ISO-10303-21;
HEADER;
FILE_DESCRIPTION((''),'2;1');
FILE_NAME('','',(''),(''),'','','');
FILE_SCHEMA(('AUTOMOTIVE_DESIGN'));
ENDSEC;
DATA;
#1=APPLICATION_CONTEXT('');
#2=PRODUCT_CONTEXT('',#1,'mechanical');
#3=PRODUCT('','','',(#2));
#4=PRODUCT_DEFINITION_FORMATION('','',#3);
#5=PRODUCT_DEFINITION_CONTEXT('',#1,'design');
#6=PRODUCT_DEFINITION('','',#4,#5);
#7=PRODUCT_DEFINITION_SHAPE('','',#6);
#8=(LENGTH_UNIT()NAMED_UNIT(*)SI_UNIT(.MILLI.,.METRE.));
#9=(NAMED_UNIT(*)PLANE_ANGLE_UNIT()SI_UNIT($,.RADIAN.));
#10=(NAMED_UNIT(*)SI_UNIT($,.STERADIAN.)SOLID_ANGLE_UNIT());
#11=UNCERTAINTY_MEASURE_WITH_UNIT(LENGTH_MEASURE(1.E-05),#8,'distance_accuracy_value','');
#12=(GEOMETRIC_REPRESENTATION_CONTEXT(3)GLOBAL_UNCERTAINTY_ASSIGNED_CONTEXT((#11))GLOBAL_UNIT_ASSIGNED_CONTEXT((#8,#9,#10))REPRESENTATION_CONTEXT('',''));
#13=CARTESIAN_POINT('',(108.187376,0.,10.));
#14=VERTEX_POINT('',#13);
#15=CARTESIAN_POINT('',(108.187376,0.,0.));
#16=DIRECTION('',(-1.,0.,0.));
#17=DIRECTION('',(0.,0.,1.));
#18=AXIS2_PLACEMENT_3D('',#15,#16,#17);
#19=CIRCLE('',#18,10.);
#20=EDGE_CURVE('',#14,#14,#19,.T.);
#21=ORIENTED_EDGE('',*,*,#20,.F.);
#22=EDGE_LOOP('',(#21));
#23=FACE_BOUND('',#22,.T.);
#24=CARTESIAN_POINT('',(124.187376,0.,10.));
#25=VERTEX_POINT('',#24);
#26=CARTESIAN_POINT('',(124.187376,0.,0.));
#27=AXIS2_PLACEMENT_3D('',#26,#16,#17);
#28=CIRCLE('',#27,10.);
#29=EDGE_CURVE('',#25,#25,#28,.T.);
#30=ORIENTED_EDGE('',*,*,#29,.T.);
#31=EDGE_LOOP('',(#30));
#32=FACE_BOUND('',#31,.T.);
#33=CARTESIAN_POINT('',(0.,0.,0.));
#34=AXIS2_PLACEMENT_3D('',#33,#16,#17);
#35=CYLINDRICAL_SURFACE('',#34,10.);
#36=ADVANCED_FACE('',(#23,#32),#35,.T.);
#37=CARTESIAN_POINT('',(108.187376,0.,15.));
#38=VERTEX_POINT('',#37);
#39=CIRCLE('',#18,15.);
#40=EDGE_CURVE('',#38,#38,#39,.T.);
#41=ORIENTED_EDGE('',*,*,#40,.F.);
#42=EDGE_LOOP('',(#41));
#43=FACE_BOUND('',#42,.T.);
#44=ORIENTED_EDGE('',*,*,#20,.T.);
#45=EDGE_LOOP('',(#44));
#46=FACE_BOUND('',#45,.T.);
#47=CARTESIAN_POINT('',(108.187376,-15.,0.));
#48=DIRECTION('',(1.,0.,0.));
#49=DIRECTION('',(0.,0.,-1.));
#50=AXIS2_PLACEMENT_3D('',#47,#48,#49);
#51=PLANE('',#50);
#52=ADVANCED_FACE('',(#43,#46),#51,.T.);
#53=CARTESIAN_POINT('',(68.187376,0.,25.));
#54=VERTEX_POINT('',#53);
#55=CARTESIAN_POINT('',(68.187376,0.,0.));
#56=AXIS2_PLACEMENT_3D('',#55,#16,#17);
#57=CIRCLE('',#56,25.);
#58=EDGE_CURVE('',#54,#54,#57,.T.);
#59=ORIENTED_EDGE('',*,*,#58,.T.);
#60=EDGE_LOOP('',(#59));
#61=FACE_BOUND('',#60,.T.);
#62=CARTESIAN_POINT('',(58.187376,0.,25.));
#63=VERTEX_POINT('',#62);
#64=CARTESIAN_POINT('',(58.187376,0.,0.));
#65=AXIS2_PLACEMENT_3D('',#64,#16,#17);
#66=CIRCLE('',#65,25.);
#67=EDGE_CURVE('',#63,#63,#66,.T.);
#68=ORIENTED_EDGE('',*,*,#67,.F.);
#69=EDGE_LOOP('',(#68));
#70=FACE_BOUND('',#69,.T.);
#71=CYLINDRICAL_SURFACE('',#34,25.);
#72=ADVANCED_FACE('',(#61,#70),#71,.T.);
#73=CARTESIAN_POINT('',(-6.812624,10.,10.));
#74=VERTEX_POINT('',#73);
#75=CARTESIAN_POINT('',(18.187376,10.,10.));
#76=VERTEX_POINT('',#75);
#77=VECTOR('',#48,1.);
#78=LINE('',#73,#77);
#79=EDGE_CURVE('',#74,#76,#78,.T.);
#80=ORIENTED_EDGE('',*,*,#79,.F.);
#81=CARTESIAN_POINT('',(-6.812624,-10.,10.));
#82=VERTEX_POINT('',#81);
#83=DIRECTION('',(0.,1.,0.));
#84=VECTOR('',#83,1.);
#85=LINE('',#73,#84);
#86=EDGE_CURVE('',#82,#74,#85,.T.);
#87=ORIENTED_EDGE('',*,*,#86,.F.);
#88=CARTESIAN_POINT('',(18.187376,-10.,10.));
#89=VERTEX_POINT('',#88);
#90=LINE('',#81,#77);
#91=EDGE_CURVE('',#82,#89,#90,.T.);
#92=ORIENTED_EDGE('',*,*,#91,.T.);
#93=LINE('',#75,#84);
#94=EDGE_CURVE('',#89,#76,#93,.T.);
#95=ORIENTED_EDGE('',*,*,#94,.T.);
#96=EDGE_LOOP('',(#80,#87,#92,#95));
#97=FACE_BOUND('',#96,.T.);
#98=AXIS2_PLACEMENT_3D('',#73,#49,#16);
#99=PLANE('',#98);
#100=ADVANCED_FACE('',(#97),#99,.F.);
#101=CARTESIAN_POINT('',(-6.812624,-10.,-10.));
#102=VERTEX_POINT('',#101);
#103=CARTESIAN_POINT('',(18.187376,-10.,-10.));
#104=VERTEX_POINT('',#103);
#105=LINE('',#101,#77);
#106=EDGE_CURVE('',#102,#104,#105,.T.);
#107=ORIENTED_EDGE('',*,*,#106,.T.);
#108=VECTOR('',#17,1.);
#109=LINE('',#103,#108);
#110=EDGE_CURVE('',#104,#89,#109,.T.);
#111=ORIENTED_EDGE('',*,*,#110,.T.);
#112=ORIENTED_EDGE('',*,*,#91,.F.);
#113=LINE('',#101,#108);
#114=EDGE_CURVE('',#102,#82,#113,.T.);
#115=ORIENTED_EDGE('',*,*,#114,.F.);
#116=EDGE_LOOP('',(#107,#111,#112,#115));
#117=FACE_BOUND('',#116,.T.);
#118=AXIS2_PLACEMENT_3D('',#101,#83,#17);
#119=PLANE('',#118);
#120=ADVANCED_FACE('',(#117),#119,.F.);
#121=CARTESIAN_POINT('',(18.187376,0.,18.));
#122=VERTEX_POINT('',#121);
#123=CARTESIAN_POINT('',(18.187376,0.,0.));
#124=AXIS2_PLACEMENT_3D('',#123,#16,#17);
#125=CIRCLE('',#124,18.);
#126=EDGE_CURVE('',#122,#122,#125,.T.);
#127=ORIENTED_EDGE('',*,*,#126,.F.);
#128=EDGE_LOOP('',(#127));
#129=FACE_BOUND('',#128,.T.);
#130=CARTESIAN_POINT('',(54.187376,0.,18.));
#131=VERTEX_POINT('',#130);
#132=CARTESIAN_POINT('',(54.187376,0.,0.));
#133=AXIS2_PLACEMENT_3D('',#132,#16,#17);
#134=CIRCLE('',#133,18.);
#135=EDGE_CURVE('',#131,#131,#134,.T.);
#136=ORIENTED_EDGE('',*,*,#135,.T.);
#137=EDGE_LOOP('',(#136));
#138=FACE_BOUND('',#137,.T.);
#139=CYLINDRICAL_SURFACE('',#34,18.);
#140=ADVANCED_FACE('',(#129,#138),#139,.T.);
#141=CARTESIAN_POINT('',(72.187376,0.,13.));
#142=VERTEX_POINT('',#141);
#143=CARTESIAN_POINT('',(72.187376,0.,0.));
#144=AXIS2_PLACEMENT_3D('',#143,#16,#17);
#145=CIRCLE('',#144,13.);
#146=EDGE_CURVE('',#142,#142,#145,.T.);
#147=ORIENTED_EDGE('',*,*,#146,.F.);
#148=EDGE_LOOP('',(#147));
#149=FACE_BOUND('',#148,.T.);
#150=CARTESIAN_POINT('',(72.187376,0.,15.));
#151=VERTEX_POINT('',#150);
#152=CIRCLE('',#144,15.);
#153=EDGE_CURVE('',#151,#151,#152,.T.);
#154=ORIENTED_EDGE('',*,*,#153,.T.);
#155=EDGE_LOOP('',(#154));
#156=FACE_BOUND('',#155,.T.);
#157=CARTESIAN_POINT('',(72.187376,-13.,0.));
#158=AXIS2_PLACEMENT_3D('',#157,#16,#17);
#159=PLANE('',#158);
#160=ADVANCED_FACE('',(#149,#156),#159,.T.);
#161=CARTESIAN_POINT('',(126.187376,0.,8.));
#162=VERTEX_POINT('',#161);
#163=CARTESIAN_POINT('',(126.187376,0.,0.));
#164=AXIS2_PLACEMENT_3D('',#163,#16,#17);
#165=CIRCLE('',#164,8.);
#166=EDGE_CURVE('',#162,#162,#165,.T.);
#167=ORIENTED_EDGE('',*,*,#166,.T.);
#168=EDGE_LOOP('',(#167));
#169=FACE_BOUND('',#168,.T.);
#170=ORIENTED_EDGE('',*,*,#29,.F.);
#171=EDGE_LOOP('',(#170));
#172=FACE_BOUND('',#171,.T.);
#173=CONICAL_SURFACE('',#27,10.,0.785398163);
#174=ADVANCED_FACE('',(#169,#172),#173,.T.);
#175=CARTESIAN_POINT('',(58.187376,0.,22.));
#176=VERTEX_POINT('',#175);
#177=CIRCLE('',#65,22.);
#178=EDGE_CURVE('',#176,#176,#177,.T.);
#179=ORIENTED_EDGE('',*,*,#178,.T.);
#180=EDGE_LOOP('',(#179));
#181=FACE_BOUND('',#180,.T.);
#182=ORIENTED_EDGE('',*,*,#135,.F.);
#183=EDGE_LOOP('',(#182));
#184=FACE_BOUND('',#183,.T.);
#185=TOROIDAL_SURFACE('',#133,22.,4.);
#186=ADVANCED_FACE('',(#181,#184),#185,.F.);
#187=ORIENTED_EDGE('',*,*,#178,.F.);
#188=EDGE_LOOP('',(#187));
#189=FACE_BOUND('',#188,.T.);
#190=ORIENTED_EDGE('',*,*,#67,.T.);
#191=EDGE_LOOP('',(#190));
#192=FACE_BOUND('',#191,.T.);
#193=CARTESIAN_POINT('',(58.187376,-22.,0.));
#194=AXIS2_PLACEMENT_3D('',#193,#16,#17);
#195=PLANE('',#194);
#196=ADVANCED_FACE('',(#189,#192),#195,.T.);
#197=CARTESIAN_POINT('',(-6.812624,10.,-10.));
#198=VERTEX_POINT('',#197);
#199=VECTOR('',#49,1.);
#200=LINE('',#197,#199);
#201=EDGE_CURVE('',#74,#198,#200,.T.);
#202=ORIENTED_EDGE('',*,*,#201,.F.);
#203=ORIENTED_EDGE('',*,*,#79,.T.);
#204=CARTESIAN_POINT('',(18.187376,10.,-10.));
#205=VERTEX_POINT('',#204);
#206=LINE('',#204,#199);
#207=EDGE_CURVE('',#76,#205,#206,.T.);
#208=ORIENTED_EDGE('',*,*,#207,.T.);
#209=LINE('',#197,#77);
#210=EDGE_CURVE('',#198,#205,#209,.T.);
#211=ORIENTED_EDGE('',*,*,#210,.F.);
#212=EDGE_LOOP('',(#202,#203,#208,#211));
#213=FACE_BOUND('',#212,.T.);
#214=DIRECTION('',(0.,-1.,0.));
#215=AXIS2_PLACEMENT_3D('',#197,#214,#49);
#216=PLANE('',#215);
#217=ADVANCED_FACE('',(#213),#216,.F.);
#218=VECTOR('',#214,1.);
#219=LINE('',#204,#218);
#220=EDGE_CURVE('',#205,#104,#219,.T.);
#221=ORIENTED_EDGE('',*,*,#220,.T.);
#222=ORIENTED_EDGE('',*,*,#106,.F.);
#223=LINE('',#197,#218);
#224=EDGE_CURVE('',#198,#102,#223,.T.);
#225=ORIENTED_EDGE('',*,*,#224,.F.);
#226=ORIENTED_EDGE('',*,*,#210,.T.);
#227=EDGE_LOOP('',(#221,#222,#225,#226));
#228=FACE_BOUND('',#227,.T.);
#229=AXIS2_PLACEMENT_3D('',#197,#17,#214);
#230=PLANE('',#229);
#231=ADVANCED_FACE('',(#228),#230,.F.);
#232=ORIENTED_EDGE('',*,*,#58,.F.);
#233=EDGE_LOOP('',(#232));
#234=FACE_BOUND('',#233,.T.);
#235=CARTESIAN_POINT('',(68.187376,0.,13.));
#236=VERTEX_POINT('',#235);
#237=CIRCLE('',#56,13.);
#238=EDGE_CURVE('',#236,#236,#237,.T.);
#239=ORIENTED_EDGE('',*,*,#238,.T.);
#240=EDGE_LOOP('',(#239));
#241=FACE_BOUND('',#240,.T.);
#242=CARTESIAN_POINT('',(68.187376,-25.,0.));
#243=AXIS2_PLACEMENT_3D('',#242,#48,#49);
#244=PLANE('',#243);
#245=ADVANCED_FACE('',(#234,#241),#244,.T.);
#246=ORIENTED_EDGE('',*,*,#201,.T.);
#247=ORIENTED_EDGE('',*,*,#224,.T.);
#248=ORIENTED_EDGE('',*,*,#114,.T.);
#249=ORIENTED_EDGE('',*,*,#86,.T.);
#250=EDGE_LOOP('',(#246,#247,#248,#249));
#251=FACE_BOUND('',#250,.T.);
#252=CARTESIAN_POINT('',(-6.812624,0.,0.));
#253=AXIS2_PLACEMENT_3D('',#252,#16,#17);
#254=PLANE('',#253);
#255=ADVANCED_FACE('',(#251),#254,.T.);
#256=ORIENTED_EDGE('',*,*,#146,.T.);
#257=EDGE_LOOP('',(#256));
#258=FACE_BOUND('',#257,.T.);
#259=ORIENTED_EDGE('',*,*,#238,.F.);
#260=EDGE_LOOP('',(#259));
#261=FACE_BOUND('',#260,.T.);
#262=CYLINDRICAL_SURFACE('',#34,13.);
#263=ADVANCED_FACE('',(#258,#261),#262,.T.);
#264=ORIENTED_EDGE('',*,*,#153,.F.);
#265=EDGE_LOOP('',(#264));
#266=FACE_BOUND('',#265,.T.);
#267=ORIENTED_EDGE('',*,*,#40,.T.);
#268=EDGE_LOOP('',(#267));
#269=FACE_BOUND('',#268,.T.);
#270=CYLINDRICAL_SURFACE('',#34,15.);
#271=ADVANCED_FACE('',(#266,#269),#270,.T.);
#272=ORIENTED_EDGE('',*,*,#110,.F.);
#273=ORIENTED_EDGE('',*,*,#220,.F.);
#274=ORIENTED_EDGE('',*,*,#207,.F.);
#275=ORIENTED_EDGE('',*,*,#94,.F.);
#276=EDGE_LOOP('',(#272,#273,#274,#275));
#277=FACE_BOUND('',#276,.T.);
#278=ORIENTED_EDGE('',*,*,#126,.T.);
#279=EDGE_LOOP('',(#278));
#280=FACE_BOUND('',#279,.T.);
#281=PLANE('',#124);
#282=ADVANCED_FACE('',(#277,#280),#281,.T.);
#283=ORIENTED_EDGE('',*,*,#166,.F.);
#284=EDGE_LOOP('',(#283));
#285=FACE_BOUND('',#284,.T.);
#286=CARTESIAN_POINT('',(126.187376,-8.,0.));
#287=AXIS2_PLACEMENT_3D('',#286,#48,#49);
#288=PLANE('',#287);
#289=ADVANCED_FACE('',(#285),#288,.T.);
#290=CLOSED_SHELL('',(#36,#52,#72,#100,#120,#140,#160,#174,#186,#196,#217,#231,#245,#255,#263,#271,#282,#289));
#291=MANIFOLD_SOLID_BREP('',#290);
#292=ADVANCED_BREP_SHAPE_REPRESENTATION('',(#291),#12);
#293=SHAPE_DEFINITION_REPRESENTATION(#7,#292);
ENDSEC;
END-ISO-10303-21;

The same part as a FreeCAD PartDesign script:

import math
import FreeCAD as App
import Part
import Sketcher
from FreeCAD import Vector


def add_polygon(sketch, points):
    """Adds a closed chain of lines whose ends are joined by coincident constraints."""
    first, n = sketch.GeometryCount, len(points)
    for a, b in zip(points, points[1:] + points[:1]):
        sketch.addGeometry(Part.LineSegment(App.Vector(*a, 0), App.Vector(*b, 0)), False)
    for i in range(n):
        sketch.addConstraint(Sketcher.Constraint("Coincident", first + i, 2, first + (i + 1) % n, 1))

doc = App.newDocument("Part")
body = doc.addObject("PartDesign::Body", "Body")

sketch1 = doc.addObject("Sketcher::SketchObject", "Sketch")
body.addObject(sketch1)
sketch1.AttachmentSupport = (doc.XY_Plane, [""])
sketch1.MapMode = "FlatFace"
sketch1.addGeometry([
    Part.LineSegment(Vector(18.2, 0, 0), Vector(18.2, -18, 0)),
    Part.LineSegment(Vector(18.2, -18, 0), Vector(54.2, -18, 0)),
    Part.ArcOfCircle(Part.Circle(Vector(54.2, -22, 0), Vector(0, 0, 1), 4), math.radians(0), math.radians(90)),
    Part.LineSegment(Vector(58.2, -22, 0), Vector(58.2, -25, 0)),
    Part.LineSegment(Vector(58.2, -25, 0), Vector(68.2, -25, 0)),
    Part.LineSegment(Vector(68.2, -25, 0), Vector(68.2, -13, 0)),
    Part.LineSegment(Vector(68.2, -13, 0), Vector(72.2, -13, 0)),
    Part.LineSegment(Vector(72.2, -13, 0), Vector(72.2, -15, 0)),
    Part.LineSegment(Vector(72.2, -15, 0), Vector(108.2, -15, 0)),
    Part.LineSegment(Vector(108.2, -15, 0), Vector(108.2, -10, 0)),
    Part.LineSegment(Vector(108.2, -10, 0), Vector(124.2, -10, 0)),
    Part.LineSegment(Vector(124.2, -10, 0), Vector(126.2, -8, 0)),
    Part.LineSegment(Vector(126.2, -8, 0), Vector(126.2, 0, 0)),
    Part.LineSegment(Vector(126.2, 0, 0), Vector(18.2, 0, 0)),
], False)
sketch1.addConstraint([
    Sketcher.Constraint("Coincident", 0, 2, 1, 1),
    Sketcher.Constraint("Tangent", 1, 2, 2, 2),
    Sketcher.Constraint("Tangent", 2, 1, 3, 1),
    Sketcher.Constraint("Coincident", 3, 2, 4, 1),
    Sketcher.Constraint("Coincident", 4, 2, 5, 1),
    Sketcher.Constraint("Coincident", 5, 2, 6, 1),
    Sketcher.Constraint("Coincident", 6, 2, 7, 1),
    Sketcher.Constraint("Coincident", 7, 2, 8, 1),
    Sketcher.Constraint("Coincident", 8, 2, 9, 1),
    Sketcher.Constraint("Coincident", 9, 2, 10, 1),
    Sketcher.Constraint("Coincident", 10, 2, 11, 1),
    Sketcher.Constraint("Coincident", 11, 2, 12, 1),
    Sketcher.Constraint("Coincident", 12, 2, 13, 1),
    Sketcher.Constraint("Coincident", 13, 2, 0, 1),
    Sketcher.Constraint("Vertical", 0),
    Sketcher.Constraint("Horizontal", 1),
    Sketcher.Constraint("Vertical", 3),
    Sketcher.Constraint("Horizontal", 4),
    Sketcher.Constraint("Vertical", 5),
    Sketcher.Constraint("Horizontal", 6),
    Sketcher.Constraint("Vertical", 7),
    Sketcher.Constraint("Horizontal", 8),
    Sketcher.Constraint("Vertical", 9),
    Sketcher.Constraint("Horizontal", 10),
    Sketcher.Constraint("Vertical", 12),
    Sketcher.Constraint("Horizontal", 13),
    Sketcher.Constraint("PointOnObject", 12, 2, -1),
    Sketcher.Constraint("Equal", 1, 8),
    Sketcher.Constraint("Radius", 2, 4.0),
    Sketcher.Constraint("DistanceX", 1, 1, 1, 2, 36.0),
    Sketcher.Constraint("DistanceX", 4, 1, 4, 2, 10.0),
    Sketcher.Constraint("DistanceX", 6, 1, 6, 2, 4.0),
    Sketcher.Constraint("DistanceX", 10, 1, 10, 2, 16.0),
    Sketcher.Constraint("DistanceX", 13, 2, 13, 1, 108.0),
    Sketcher.Constraint("DistanceY", 0, 2, 0, 1, 18.0),
    Sketcher.Constraint("DistanceY", 3, 2, 3, 1, 3.0),
    Sketcher.Constraint("DistanceY", 5, 1, 5, 2, 12.0),
    Sketcher.Constraint("DistanceY", 7, 2, 7, 1, 2.0),
    Sketcher.Constraint("DistanceY", 9, 1, 9, 2, 5.0),
    Sketcher.Constraint("DistanceY", 12, 1, 12, 2, 8.0),
    Sketcher.Constraint("DistanceX", -1, 1, 2, 3, 54.187376),
])
revolution = doc.addObject("PartDesign::Revolution", "Revolution")
body.addObject(revolution)
revolution.Profile = sketch1
revolution.ReferenceAxis = (sketch1, ["H_Axis"])
revolution.Angle = 360

sketch2 = doc.addObject("Sketcher::SketchObject", "Sketch001")
body.addObject(sketch2)
sketch2.AttachmentSupport = (doc.YZ_Plane, [""])
sketch2.MapMode = "FlatFace"
sketch2.AttachmentOffset = App.Placement(Vector(0, 0, 18.187376), App.Rotation())
add_polygon(sketch2, [(10, -10), (-10, -10), (-10, 10), (10, 10)])
sketch2.addConstraint([
    Sketcher.Constraint("Horizontal", 0),
    Sketcher.Constraint("Vertical", 1),
    Sketcher.Constraint("Horizontal", 2),
    Sketcher.Constraint("Vertical", 3),
    Sketcher.Constraint("Symmetric", 0, 2, 2, 2, -1, 1),
    Sketcher.Constraint("Equal", 2, 1),
    Sketcher.Constraint("DistanceX", 0, 2, 0, 1, 20.0),
])
pad1 = doc.addObject("PartDesign::Pad", "Pad")
body.addObject(pad1)
pad1.Profile = sketch2
pad1.Length = 25
pad1.Reversed = True

doc.recompute()
